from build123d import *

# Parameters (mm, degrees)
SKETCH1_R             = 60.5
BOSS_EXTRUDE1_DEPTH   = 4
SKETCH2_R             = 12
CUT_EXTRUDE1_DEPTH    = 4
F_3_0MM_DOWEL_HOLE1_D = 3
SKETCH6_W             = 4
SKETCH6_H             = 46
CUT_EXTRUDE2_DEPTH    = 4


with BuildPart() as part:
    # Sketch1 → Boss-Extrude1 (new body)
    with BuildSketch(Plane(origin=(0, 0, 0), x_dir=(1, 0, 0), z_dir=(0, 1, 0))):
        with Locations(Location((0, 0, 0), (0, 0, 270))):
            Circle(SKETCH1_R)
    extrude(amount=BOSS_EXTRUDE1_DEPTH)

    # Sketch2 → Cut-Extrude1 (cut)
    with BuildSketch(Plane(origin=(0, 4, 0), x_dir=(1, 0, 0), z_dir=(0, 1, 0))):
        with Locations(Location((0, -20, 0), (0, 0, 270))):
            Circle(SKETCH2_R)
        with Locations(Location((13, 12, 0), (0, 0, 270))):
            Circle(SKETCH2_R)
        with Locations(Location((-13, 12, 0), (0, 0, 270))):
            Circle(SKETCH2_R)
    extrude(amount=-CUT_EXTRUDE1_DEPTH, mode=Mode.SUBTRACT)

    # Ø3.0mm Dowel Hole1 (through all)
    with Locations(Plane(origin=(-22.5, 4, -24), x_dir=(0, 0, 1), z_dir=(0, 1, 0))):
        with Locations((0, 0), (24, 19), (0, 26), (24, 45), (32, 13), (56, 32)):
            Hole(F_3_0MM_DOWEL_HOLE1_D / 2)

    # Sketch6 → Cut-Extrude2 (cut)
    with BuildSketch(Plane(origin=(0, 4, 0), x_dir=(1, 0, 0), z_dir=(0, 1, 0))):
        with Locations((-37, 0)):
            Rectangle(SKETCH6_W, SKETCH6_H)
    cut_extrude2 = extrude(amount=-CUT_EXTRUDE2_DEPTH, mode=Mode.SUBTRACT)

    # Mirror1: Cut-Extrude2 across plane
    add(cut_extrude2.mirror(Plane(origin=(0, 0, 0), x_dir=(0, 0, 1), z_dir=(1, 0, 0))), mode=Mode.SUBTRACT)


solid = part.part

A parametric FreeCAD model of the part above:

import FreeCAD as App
import Part
import Sketcher
from FreeCAD import Vector
Q = App.Units.Quantity


def add_polygon(sketch, points):
    """Adds a closed chain of lines whose ends are joined by coincident constraints."""
    first, n = sketch.GeometryCount, len(points)
    for a, b in zip(points, points[1:] + points[:1]):
        sketch.addGeometry(Part.LineSegment(App.Vector(*a, 0), App.Vector(*b, 0)), False)
    for i in range(n):
        sketch.addConstraint(Sketcher.Constraint("Coincident", first + i, 2, first + (i + 1) % n, 1))

doc = App.newDocument("Part")
body = doc.addObject("PartDesign::Body", "Body")

# Sketch on XZ plane
sketch1 = body.newObject("Sketcher::SketchObject", "Sketch")
sketch1.AttachmentSupport = (doc.getObject("XZ_Plane"), [""])
sketch1.MapMode = "FlatFace"
sketch1.addGeometry(Part.Circle(Vector(0, 0, 0), Vector(0, 0, 1), 60), False)
sketch1.addConstraint([
    Sketcher.Constraint("Coincident", 0, 3, -1, 1),
    Sketcher.Constraint("Diameter", 0, Q("121 mm")),
])
pad1 = body.newObject("PartDesign::Pad", "Pad")
pad1.Profile = sketch1
pad1.Length = 4
pad1.Reversed = True

# Sketch on XZ plane
sketch2 = body.newObject("Sketcher::SketchObject", "Sketch001")
sketch2.AttachmentSupport = (doc.getObject("XZ_Plane"), [""])
sketch2.MapMode = "FlatFace"
sketch2.AttachmentOffset = App.Placement(Vector(0, 0, -4), App.Rotation())
sketch2.addGeometry([
    Part.Circle(Vector(0, 20, 0), Vector(0, 0, 1), 12),
    Part.Circle(Vector(13, -12, 0), Vector(0, 0, 1), 12),
    Part.Circle(Vector(-13, -12, 0), Vector(0, 0, 1), 12),
], False)
sketch2.addConstraint([
    Sketcher.Constraint("Equal", 0, 1),
    Sketcher.Constraint("Equal", 1, 2),
    Sketcher.Constraint("Symmetric", 1, 3, 2, 3, -2),
    Sketcher.Constraint("PointOnObject", 0, 3, -2),
    Sketcher.Constraint("Diameter", 0, Q("24 mm")),
    Sketcher.Constraint("DistanceY", -1, 1, 0, 3, Q("20 mm")),
    Sketcher.Constraint("DistanceX", -1, 1, 1, 3, Q("13 mm")),
    Sketcher.Constraint("DistanceY", 1, 3, -1, 1, Q("12 mm")),
])
pocket1 = body.newObject("PartDesign::Pocket", "Pocket")
pocket1.Profile = sketch2
pocket1.Length = 4
pocket1.Reversed = True

# Sketch on XZ plane
sketch3 = body.newObject("Sketcher::SketchObject", "Sketch002")
sketch3.AttachmentSupport = (doc.getObject("XZ_Plane"), [""])
sketch3.MapMode = "FlatFace"
sketch3.AttachmentOffset = App.Placement(Vector(0, 0, -4), App.Rotation())
sketch3.addGeometry([
    Part.Circle(Vector(-22.5, -24, 0), Vector(0, 0, 1), 1.5),  # 0
    Part.Circle(Vector(-3.5, 0, 0), Vector(0, 0, 1), 1.5),  # 1
    Part.Circle(Vector(3.5, -24, 0), Vector(0, 0, 1), 1.5),  # 2
    Part.Circle(Vector(22.5, 0, 0), Vector(0, 0, 1), 1.5),  # 3
    Part.Circle(Vector(-9.5, 8, 0), Vector(0, 0, 1), 1.5),  # 4
    Part.Circle(Vector(9.5, 32, 0), Vector(0, 0, 1), 1.5),  # 5
], False)
sketch3.addConstraint([
    Sketcher.Constraint("Equal", 0, 1),
    Sketcher.Constraint("Equal", 1, 2),
    Sketcher.Constraint("Equal", 2, 3),
    Sketcher.Constraint("Equal", 3, 4),
    Sketcher.Constraint("Equal", 4, 5),
    Sketcher.Constraint("PointOnObject", 1, 3, -1),
    Sketcher.Constraint("PointOnObject", 3, 3, -1),
    Sketcher.Constraint("Horizontal", 0, 3, 2, 3),
    Sketcher.Constraint("Diameter", 0, Q("3 mm")),
    Sketcher.Constraint("DistanceY", 0, 3, -1, 1, Q("24 mm")),
    Sketcher.Constraint("DistanceY", -1, 1, 4, 3, Q("8 mm")),
    Sketcher.Constraint("DistanceY", -1, 1, 5, 3, Q("32 mm")),
    Sketcher.Constraint("DistanceX", 0, 3, 1, 3, Q("19 mm")),
    Sketcher.Constraint("DistanceX", 1, 3, 2, 3, Q("7 mm")),
    Sketcher.Constraint("DistanceX", 1, 3, 3, 3, Q("26 mm")),
    Sketcher.Constraint("DistanceX", 4, 3, 1, 3, Q("6 mm")),
    Sketcher.Constraint("DistanceX", 4, 3, 5, 3, Q("19 mm")),
    Sketcher.Constraint("DistanceX", 0, 3, -1, 1, Q("22.5 mm")),
])
doc.recompute()
hole = body.newObject("PartDesign::Hole", "Hole")
hole.Profile = sketch3
hole.ThreadType = "None"
hole.Diameter = 3
hole.DepthType = "ThroughAll"
hole.Reversed = True

# Sketch on XZ plane
sketch4 = body.newObject("Sketcher::SketchObject", "Sketch003")
sketch4.AttachmentSupport = (doc.getObject("XZ_Plane"), [""])
sketch4.MapMode = "FlatFace"
sketch4.AttachmentOffset = App.Placement(Vector(0, 0, -4), App.Rotation())
add_polygon(sketch4, [(-39, -23), (-39, 23), (-35, 23), (-35, -23)])  # lines 0-3
sketch4.addConstraint([
    Sketcher.Constraint("Vertical", 0),
    Sketcher.Constraint("Horizontal", 1),
    Sketcher.Constraint("Vertical", 2),
    Sketcher.Constraint("Horizontal", 3),
    Sketcher.Constraint("DistanceX", 1, 1, 1, 2, Q("4 mm")),
    Sketcher.Constraint("DistanceY", 0, 1, 0, 2, Q("46 mm")),
    Sketcher.Constraint("DistanceX", 0, 2, -1, 1, Q("39 mm")),
    Sketcher.Constraint("DistanceY", -1, 1, 0, 2, Q("23 mm")),
])
pocket2 = body.newObject("PartDesign::Pocket", "Pocket001")
pocket2.Profile = sketch4
pocket2.Length = 4
pocket2.Reversed = True
doc.recompute()

mirrored = body.newObject("PartDesign::Mirrored", "Mirrored")
mirrored.Originals = [pocket2]
mirrored.MirrorPlane = (doc.getObject("YZ_Plane"), [""])
body.Tip = mirrored

doc.recompute()
